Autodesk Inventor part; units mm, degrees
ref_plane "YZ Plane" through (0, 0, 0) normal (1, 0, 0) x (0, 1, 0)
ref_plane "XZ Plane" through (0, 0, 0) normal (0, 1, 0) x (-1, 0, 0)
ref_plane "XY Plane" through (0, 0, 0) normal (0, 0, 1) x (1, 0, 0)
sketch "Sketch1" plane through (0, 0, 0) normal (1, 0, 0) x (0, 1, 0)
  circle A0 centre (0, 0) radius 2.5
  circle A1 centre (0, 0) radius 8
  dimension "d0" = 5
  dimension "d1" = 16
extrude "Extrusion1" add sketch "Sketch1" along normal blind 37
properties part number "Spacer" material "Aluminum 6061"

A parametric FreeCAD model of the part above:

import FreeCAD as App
import Part
import Sketcher

V = App.Vector

doc = App.newDocument("Part")
body = doc.addObject("PartDesign::Body", "Body")

sketch1 = body.newObject("Sketcher::SketchObject", "Sketch")
sketch1.AttachmentSupport = (doc.getObject("YZ_Plane"), [""])
sketch1.MapMode = "FlatFace"
sketch1.addGeometry([
    Part.Circle(V(0, 0, 0), V(0, 0, 1), 8),
    Part.Circle(V(0, 0, 0), V(0, 0, 1), 2.5),
], False)
sketch1.addConstraint([
    Sketcher.Constraint("Coincident", 0, 3, -1, 1),
    Sketcher.Constraint("Coincident", 1, 3, -1, 1),
    Sketcher.Constraint("Diameter", 0, 16.0),
    Sketcher.Constraint("Diameter", 1, 5.0),
])
pad1 = body.newObject("PartDesign::Pad", "Pad")
pad1.Profile = sketch1
pad1.Length = 37

doc.recompute()
